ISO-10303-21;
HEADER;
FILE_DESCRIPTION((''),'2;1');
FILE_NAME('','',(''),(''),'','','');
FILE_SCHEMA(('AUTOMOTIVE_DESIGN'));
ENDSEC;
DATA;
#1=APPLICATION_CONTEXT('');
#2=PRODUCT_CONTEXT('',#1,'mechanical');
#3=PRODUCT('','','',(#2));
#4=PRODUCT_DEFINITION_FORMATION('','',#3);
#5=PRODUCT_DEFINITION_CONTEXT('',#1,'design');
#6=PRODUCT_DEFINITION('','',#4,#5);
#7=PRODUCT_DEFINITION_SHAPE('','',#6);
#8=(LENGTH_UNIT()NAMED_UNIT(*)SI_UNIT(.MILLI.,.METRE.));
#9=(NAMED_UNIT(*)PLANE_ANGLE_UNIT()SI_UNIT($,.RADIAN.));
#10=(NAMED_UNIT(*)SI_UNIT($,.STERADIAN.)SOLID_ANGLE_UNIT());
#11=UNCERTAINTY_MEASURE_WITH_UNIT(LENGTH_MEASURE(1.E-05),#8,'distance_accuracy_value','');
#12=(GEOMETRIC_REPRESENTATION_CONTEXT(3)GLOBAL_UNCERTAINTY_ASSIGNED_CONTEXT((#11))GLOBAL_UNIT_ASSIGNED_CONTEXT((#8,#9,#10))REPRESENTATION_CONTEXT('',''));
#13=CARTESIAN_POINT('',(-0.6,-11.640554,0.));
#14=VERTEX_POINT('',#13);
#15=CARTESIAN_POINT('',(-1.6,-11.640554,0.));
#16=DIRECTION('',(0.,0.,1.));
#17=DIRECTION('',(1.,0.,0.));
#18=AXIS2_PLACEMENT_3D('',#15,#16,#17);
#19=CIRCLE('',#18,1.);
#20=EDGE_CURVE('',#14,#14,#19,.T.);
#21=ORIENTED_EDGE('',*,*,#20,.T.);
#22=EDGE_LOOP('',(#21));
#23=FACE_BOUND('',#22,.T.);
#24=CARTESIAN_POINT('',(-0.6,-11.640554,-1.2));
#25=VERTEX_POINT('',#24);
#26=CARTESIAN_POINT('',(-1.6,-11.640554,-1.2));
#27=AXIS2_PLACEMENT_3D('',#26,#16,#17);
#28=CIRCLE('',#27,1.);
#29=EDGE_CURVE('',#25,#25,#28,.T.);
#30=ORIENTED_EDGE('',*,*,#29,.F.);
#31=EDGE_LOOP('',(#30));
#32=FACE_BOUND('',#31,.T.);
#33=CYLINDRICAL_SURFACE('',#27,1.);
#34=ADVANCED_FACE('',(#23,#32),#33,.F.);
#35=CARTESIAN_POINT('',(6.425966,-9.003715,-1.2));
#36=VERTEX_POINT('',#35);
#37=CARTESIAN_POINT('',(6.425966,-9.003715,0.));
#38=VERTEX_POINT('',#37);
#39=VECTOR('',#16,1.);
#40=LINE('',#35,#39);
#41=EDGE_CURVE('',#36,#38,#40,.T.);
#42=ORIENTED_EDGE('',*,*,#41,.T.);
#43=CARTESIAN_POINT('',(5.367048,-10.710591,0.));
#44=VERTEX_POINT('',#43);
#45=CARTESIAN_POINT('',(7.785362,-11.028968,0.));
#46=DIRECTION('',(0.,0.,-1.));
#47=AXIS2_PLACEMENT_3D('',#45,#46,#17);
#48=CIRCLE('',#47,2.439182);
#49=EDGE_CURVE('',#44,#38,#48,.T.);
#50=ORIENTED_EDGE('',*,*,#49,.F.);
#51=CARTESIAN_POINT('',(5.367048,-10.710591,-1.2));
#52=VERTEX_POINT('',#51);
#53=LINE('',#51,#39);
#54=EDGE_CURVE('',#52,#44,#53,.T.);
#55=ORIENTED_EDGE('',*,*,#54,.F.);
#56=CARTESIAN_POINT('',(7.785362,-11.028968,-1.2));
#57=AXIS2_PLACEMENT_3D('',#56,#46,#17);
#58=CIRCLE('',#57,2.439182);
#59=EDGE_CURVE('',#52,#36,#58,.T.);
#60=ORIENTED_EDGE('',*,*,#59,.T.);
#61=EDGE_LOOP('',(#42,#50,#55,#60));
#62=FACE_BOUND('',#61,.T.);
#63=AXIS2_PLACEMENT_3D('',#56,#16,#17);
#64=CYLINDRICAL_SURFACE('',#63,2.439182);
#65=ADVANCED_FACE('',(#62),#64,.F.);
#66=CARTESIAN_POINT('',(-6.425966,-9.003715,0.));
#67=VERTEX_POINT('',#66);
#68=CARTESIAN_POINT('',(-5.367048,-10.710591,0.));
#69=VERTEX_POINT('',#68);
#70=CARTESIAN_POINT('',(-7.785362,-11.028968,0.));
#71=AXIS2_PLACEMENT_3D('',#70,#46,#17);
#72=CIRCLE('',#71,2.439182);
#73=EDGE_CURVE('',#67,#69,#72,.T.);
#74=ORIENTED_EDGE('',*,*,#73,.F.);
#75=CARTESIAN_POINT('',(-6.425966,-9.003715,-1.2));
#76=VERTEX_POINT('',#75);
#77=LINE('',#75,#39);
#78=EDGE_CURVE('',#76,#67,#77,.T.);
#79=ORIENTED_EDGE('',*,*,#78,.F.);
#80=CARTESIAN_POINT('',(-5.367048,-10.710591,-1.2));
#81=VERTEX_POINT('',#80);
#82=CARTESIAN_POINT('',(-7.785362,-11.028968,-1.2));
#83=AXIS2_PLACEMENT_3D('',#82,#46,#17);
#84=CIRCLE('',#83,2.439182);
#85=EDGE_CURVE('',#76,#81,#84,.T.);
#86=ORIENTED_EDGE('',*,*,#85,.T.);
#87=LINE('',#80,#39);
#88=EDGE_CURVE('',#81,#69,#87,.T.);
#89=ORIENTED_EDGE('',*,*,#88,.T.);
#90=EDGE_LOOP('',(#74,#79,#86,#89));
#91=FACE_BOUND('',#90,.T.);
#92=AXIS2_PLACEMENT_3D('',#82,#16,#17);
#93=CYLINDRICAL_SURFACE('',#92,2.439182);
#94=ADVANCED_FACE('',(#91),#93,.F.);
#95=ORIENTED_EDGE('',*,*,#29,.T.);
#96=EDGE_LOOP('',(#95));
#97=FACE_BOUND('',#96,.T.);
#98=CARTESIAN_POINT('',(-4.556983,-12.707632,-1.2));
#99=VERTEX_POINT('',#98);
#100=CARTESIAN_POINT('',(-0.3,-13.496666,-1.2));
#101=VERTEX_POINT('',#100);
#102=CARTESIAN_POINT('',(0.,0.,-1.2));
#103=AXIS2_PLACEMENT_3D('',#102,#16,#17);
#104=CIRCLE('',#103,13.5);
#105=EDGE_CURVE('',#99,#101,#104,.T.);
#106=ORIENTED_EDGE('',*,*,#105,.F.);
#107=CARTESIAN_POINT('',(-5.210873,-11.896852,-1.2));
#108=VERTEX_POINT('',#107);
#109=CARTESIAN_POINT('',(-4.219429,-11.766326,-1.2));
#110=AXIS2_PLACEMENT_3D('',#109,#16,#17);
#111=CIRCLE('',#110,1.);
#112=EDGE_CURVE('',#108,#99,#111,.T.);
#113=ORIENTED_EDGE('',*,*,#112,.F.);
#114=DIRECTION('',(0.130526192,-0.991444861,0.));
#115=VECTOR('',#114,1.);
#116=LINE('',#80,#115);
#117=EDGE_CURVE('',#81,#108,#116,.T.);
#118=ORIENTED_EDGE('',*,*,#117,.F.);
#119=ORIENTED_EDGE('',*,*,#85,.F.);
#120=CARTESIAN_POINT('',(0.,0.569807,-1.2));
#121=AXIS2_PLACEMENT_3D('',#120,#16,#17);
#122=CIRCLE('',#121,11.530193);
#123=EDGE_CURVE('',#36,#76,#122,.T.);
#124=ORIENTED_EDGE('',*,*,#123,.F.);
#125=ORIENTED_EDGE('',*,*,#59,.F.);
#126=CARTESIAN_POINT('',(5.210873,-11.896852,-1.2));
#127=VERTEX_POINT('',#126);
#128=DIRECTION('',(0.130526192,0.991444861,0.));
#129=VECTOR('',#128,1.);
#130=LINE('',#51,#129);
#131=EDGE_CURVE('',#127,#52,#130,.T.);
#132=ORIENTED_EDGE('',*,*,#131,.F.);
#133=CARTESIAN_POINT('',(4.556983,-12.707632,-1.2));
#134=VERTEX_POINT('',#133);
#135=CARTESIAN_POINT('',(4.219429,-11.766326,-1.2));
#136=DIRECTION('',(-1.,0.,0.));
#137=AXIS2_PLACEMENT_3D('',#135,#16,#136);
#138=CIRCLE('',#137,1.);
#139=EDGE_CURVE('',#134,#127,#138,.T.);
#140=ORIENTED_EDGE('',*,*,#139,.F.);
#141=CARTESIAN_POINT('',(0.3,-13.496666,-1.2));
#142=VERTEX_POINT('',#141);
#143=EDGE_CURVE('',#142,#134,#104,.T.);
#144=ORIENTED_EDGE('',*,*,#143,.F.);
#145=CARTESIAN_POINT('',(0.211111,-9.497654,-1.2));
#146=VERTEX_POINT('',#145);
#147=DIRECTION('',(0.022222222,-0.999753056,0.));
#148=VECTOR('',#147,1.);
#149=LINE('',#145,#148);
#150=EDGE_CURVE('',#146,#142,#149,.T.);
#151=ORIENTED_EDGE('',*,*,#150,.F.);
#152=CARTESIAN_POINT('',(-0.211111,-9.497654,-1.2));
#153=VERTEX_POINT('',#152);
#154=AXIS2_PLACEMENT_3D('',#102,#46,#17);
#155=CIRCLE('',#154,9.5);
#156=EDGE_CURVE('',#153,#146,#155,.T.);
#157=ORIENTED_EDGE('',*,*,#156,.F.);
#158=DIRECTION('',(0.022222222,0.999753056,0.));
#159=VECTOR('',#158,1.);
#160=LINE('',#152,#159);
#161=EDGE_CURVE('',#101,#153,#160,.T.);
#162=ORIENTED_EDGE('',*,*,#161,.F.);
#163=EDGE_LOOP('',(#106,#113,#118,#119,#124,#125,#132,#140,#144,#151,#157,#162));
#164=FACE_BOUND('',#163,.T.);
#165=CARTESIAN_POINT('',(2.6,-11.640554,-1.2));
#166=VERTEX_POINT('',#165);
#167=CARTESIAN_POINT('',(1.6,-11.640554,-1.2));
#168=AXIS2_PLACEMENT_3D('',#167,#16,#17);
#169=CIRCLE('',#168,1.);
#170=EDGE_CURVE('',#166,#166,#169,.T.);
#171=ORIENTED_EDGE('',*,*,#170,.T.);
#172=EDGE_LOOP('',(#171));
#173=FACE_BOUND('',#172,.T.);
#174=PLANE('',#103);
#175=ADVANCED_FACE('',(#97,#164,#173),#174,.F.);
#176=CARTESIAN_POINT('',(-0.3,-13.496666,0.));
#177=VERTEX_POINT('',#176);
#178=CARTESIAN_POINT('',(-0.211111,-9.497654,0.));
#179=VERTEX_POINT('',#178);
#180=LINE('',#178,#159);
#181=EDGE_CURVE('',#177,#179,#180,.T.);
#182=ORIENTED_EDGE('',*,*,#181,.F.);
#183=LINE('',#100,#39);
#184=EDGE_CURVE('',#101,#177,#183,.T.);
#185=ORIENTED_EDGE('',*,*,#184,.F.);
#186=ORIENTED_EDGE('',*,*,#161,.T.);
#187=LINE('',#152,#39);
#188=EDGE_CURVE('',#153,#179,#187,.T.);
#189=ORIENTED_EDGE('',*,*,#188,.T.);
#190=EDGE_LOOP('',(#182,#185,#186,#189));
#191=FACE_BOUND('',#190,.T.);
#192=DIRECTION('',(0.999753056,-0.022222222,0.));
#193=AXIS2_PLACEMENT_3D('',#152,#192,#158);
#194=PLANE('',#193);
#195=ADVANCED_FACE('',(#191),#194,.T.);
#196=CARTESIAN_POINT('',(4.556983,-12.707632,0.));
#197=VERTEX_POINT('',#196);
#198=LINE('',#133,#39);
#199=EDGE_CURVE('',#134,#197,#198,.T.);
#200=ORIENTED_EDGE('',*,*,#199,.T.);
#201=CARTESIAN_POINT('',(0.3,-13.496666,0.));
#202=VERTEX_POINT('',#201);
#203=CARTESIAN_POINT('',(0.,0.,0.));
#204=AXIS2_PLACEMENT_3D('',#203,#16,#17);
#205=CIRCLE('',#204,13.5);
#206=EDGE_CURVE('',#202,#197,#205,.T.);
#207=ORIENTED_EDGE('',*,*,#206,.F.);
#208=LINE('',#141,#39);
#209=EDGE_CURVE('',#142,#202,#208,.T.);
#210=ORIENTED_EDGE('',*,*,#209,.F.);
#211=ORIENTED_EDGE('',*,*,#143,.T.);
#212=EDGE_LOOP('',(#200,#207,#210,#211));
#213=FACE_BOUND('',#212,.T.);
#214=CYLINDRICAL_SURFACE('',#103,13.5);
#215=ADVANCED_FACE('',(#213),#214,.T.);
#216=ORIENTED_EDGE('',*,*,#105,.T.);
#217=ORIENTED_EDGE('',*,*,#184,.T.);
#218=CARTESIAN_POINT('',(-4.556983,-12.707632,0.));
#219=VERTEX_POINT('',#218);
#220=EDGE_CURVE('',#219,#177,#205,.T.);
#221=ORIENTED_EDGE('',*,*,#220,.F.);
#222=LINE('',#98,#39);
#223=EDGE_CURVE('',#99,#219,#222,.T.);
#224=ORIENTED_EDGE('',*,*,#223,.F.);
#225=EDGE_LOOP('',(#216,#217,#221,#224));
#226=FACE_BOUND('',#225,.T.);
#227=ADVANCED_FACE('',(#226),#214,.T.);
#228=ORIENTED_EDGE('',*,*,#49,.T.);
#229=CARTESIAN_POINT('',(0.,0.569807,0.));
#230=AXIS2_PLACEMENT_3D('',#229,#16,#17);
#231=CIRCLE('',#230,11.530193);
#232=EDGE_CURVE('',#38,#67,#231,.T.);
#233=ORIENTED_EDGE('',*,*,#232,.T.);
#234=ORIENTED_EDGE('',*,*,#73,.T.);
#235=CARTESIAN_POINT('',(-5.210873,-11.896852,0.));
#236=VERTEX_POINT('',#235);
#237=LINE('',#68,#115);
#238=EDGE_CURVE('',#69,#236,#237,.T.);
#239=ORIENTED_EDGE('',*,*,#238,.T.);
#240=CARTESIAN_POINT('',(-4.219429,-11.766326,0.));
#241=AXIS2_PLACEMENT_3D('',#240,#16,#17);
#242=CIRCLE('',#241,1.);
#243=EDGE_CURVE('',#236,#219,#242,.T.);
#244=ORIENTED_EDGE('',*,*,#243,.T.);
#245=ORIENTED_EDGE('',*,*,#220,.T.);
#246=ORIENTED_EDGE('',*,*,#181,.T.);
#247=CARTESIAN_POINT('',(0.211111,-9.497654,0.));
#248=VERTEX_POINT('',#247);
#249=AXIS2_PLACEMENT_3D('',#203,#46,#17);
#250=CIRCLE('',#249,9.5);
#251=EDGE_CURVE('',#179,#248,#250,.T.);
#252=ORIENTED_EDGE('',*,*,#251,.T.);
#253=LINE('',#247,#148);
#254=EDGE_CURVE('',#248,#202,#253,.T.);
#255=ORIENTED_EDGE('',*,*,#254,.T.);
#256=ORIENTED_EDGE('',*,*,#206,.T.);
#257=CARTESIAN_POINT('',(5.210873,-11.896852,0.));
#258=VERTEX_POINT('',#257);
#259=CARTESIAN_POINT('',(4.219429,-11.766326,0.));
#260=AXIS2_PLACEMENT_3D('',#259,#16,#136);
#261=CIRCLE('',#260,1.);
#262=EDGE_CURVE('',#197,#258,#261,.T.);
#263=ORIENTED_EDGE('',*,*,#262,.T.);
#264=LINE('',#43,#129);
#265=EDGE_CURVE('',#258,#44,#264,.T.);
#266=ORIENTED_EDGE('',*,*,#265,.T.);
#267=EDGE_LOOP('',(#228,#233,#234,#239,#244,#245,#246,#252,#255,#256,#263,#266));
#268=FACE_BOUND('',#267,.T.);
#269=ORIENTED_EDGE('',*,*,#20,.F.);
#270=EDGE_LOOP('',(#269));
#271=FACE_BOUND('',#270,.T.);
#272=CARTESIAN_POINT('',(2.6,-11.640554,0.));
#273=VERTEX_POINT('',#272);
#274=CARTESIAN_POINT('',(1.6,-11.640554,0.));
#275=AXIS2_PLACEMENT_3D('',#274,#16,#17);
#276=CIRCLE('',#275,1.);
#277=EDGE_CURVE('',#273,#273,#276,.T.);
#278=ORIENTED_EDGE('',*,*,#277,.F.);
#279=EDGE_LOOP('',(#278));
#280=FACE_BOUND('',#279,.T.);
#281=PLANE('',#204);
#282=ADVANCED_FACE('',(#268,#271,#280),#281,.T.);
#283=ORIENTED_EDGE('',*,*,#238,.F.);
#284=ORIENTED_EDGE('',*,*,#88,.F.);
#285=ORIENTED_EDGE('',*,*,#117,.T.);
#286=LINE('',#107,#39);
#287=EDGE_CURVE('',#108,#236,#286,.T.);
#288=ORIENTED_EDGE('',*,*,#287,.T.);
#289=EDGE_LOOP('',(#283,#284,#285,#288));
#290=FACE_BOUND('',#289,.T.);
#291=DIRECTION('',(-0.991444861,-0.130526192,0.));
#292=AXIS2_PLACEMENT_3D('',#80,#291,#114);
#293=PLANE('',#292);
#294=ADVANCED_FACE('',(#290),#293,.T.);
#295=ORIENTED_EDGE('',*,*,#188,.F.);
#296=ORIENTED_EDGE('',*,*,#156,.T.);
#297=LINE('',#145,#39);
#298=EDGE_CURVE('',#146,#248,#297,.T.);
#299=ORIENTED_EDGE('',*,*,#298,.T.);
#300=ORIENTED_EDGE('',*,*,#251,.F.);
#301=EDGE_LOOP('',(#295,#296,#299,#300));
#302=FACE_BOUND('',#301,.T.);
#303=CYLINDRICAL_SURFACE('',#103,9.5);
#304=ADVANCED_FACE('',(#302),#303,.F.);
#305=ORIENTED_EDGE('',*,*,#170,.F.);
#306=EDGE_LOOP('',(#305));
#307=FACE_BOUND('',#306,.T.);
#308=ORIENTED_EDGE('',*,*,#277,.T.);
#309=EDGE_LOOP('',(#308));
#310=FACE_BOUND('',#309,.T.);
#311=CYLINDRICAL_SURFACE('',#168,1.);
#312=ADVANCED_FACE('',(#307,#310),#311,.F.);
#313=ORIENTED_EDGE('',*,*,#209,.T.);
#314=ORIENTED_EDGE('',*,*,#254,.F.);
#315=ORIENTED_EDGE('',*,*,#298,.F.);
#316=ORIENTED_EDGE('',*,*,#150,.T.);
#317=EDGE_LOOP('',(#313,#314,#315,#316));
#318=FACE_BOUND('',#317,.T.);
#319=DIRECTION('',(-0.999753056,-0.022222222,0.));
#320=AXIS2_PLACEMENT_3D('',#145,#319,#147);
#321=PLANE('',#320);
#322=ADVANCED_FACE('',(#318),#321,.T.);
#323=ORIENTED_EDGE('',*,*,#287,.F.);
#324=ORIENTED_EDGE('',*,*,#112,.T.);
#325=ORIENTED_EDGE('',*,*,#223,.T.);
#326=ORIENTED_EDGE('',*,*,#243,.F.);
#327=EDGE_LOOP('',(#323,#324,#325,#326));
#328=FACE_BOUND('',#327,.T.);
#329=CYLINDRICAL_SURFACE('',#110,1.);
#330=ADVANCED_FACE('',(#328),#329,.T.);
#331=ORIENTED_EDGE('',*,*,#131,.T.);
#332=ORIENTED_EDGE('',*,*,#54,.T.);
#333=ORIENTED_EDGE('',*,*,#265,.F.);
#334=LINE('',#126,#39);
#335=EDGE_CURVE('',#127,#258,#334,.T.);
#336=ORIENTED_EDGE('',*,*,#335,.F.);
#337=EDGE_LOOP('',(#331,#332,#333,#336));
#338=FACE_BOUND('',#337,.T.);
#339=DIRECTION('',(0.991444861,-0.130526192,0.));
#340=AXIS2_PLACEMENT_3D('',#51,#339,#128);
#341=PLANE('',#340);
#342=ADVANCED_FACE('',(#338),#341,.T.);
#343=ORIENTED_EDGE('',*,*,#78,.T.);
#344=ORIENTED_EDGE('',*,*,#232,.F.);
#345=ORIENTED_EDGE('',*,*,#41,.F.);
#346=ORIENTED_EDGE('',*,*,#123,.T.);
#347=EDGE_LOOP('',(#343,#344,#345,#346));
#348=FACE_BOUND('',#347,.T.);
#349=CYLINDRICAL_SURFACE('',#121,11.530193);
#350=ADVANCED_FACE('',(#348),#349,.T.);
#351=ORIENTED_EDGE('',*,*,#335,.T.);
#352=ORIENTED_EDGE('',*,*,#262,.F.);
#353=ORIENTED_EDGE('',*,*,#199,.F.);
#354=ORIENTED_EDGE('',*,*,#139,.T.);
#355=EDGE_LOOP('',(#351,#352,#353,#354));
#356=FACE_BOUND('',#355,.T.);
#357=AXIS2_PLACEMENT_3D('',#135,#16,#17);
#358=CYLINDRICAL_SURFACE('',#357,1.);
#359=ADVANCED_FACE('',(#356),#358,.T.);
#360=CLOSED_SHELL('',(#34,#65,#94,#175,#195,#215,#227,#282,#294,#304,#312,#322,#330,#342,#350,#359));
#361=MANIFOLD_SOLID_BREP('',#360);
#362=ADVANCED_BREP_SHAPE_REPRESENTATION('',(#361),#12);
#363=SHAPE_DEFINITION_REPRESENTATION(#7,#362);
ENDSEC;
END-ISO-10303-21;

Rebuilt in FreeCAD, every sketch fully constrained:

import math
import FreeCAD as App
import Part
import Sketcher
from FreeCAD import Vector
Q = App.Units.Quantity

doc = App.newDocument("Part")
body = doc.addObject("PartDesign::Body", "Body")

sketch1 = body.newObject("Sketcher::SketchObject", "Sketch")
sketch1.AttachmentSupport = (doc.getObject("XY_Plane"), [""])
sketch1.MapMode = "FlatFace"
sketch1.addGeometry([
    Part.LineSegment(Vector(0.21, -9.5, 0), Vector(0.3, -13.5, 0)),
    Part.ArcOfCircle(Part.Circle(Vector(0, 0, 0), Vector(0, 0, 1), 13.5), math.radians(-88.73), math.radians(-70.27)),
    Part.ArcOfCircle(Part.Circle(Vector(4.22, -11.77, 0), Vector(0, 0, 1), 1), math.radians(-70), math.radians(-7)),
    Part.LineSegment(Vector(5.21, -11.9, 0), Vector(5.37, -10.71, 0)),
    Part.ArcOfCircle(Part.Circle(Vector(7.79, -11.03, 0), Vector(0, 0, 1), 2.44), math.radians(124), math.radians(173)),
    Part.ArcOfCircle(Part.Circle(Vector(0, 0.57, 0), Vector(0, 0, 1), 11.53), math.radians(-56), math.radians(236)),
    Part.ArcOfCircle(Part.Circle(Vector(-7.79, -11.03, 0), Vector(0, 0, 1), 2.44), math.radians(7), math.radians(56)),
    Part.LineSegment(Vector(-5.37, -10.71, 0), Vector(-5.21, -11.9, 0)),
    Part.ArcOfCircle(Part.Circle(Vector(-4.22, -11.77, 0), Vector(0, 0, 1), 1), math.radians(-173), math.radians(-110)),
    Part.ArcOfCircle(Part.Circle(Vector(0, 0, 0), Vector(0, 0, 1), 13.5), math.radians(-109.73), math.radians(-91.27)),
    Part.LineSegment(Vector(-0.3, -13.5, 0), Vector(-0.21, -9.5, 0)),
    Part.ArcOfCircle(Part.Circle(Vector(0, 0, 0), Vector(0, 0, 1), 9.5), math.radians(-89), math.radians(269)),
    Part.Circle(Vector(-1.6, -11.64, 0), Vector(0, 0, 1), 1),
    Part.Circle(Vector(1.6, -11.64, 0), Vector(0, 0, 1), 1),
], False)
sketch1.addConstraint([
    Sketcher.Constraint("Coincident", 0, 2, 1, 1),
    Sketcher.Constraint("Tangent", 1, 2, 2, 1),
    Sketcher.Constraint("Tangent", 2, 2, 3, 1),
    Sketcher.Constraint("Tangent", 3, 2, 4, 2),
    Sketcher.Constraint("Tangent", 4, 1, 5, 1),
    Sketcher.Constraint("Tangent", 5, 2, 6, 2),
    Sketcher.Constraint("Tangent", 6, 1, 7, 1),
    Sketcher.Constraint("Tangent", 7, 2, 8, 1),
    Sketcher.Constraint("Tangent", 8, 2, 9, 1),
    Sketcher.Constraint("Coincident", 9, 2, 10, 1),
    Sketcher.Constraint("Coincident", 10, 2, 11, 2),
    Sketcher.Constraint("Coincident", 11, 1, 0, 1),
    Sketcher.Constraint("Coincident", 1, 3, -1, 1),
    Sketcher.Constraint("Coincident", 9, 3, -1, 1),
    Sketcher.Constraint("Coincident", 11, 3, -1, 1),
    Sketcher.Constraint("Equal", 4, 6),
    Sketcher.Constraint("Equal", 2, 8),
    Sketcher.Constraint("Equal", 1, 9),
    Sketcher.Constraint("Equal", 8, 12),
    Sketcher.Constraint("Equal", 12, 13),
    Sketcher.Constraint("Symmetric", 4, 3, 6, 3, -2),
    Sketcher.Constraint("Symmetric", 12, 3, 13, 3, -2),
    Sketcher.Constraint("Horizontal", 2, 3, 8, 3),
    Sketcher.Constraint("Horizontal", 0, 2, 9, 2),
    Sketcher.Constraint("Horizontal", 10, 2, 11, 1),
    Sketcher.Constraint("Diameter", 12, 2.0),
    Sketcher.Constraint("Radius", 1, 13.5),
    Sketcher.Constraint("Radius", 11, 9.5),
    Sketcher.Constraint("Angle", 3, Q("82.5 deg")),
    Sketcher.Constraint("DistanceX", 12, 3, -1, 1, 1.6),
    Sketcher.Constraint("DistanceX", -1, 1, 0, 2, 0.3),
    Sketcher.Constraint("Radius", 4, 2.439182),
    Sketcher.Constraint("Radius", 5, 11.530193),
    Sketcher.Constraint("DistanceY", 0, 2, 4, 3, 2.467698),
    Sketcher.Constraint("DistanceY", 12, 3, 10, 2, 2.1429),
    Sketcher.Constraint("DistanceX", -1, 1, 2, 3, 4.219429),
    Sketcher.Constraint("DistanceX", 10, 2, -1, 1, 0.211111),
])
pad1 = body.newObject("PartDesign::Pad", "Pad")
pad1.Profile = sketch1
pad1.Length = 1.2
pad1.Reversed = True

doc.recompute()
